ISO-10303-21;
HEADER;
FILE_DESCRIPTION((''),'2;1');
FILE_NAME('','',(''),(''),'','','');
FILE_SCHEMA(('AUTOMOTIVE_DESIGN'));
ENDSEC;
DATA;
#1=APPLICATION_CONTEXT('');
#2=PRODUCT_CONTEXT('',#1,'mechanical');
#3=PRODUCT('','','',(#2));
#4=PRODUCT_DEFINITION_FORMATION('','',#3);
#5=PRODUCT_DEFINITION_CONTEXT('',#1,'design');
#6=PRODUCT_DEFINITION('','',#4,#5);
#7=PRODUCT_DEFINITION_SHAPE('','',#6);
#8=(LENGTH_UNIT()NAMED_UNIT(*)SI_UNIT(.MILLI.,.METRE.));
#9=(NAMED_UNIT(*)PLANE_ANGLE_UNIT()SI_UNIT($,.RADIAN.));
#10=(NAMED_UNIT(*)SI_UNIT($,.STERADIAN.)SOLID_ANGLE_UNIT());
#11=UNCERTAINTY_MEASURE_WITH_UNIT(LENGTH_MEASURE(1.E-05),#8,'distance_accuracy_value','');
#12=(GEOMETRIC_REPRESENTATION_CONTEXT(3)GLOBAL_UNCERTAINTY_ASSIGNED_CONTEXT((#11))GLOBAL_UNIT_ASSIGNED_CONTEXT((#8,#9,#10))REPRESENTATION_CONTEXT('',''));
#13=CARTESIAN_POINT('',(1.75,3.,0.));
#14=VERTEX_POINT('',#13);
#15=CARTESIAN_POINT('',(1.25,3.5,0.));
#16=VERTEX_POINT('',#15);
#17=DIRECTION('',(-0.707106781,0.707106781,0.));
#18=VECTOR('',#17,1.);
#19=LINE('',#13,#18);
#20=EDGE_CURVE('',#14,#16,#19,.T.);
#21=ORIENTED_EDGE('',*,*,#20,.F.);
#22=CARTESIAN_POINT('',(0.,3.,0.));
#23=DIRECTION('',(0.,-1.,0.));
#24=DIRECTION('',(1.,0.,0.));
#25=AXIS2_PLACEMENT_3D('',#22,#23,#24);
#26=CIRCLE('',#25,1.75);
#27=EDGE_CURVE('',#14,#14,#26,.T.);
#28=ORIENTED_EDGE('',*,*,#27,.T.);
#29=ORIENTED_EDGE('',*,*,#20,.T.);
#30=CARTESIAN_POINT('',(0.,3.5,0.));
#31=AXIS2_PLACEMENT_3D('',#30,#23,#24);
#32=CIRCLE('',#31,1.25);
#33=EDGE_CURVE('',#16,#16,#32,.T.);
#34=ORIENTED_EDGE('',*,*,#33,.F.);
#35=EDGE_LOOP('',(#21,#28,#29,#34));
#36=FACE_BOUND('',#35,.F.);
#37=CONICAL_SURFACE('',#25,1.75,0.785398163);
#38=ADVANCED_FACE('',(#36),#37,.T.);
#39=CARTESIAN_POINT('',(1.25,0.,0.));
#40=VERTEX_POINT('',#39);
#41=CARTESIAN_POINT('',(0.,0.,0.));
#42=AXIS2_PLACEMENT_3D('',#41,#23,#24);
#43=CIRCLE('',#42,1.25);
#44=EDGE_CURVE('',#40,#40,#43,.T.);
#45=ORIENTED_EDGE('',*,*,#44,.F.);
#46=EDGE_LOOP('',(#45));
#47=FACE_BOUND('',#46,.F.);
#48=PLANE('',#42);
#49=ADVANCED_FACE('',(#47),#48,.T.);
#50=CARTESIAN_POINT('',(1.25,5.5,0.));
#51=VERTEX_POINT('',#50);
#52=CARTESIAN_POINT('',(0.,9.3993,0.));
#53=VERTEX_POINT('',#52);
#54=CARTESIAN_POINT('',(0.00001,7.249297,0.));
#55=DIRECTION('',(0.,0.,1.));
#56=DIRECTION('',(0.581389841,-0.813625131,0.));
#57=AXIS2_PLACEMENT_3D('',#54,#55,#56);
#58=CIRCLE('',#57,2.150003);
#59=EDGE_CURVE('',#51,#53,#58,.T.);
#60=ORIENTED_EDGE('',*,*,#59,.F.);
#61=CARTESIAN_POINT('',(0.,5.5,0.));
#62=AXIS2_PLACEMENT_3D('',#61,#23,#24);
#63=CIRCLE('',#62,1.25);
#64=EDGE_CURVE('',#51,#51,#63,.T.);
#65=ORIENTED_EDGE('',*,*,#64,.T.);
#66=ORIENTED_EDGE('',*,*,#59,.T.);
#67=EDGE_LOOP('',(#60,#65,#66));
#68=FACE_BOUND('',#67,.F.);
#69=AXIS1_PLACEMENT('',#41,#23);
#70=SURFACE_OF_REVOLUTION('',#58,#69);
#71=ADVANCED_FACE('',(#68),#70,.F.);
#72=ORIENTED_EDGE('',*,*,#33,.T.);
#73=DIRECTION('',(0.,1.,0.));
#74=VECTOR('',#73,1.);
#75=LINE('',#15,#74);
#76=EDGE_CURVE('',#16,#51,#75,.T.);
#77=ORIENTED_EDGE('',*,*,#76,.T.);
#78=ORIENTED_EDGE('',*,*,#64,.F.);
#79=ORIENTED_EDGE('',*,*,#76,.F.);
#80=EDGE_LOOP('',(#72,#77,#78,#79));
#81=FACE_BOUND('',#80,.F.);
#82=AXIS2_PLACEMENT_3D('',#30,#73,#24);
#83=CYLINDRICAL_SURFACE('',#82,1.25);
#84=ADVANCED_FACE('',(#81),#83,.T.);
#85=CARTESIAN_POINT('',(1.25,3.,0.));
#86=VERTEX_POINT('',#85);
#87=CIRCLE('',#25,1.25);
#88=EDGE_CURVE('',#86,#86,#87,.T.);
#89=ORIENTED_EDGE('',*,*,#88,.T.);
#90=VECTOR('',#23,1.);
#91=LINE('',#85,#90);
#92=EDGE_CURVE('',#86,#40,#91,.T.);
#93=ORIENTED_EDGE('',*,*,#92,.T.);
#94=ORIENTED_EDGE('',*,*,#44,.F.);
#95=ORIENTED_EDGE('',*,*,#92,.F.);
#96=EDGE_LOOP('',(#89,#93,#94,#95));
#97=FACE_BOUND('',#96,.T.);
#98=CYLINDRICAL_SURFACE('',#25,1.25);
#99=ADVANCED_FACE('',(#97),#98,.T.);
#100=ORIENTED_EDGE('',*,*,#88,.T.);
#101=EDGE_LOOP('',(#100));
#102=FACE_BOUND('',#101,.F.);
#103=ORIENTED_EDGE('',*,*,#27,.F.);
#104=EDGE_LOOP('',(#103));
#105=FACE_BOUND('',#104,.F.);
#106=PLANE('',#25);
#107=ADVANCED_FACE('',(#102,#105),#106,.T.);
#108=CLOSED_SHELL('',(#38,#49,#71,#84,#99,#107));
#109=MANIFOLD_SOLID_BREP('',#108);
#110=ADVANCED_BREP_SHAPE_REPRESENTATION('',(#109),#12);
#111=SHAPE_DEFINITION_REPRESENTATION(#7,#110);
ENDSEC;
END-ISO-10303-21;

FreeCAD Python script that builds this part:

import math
import FreeCAD as App
import Part
import Sketcher

V = App.Vector

doc = App.newDocument("Part")
params = doc.addObject("Spreadsheet::Sheet", "Params")
for row, (alias, value) in enumerate([
    ("sketch1_height", "3 mm"),
    ("sketch1_height2", "2 mm"),
    ("sketch1_radius", "2.15 mm"),
    ("sketch1_width", "0.5 mm"),
    ("sketch1_width2", "1.25 mm"),
    ("revolution_angle", "360 deg"),
], start=1):
    params.set(f"A{row}", alias)
    params.set(f"B{row}", "=" + value)
    params.setAlias(f"B{row}", alias)

body = doc.addObject("PartDesign::Body", "Body")

sketch1 = body.newObject("Sketcher::SketchObject", "Sketch")
sketch1.AttachmentSupport = (doc.getObject("XY_Plane"), [""])
sketch1.MapMode = "FlatFace"
sketch1.addGeometry([
    Part.LineSegment(V(0, 9.4, 0), V(0, 0, 0)),
    Part.LineSegment(V(0, 0, 0), V(1.2, 0, 0)),
    Part.LineSegment(V(1.2, 0, 0), V(1.2, 3, 0)),
    Part.LineSegment(V(1.2, 3, 0), V(1.8, 3, 0)),
    Part.LineSegment(V(1.8, 3, 0), V(1.2, 3.5, 0)),
    Part.LineSegment(V(1.2, 3.5, 0), V(1.2, 5.5, 0)),
    Part.ArcOfCircle(Part.Circle(V(0, 7.2, 0), V(0, 0, 1), 2.2), math.radians(-54), math.radians(90)),
], False)
sketch1.addConstraint([
    Sketcher.Constraint("Coincident", 0, 2, 1, 1),
    Sketcher.Constraint("Coincident", 1, 2, 2, 1),
    Sketcher.Constraint("Coincident", 2, 2, 3, 1),
    Sketcher.Constraint("Coincident", 3, 2, 4, 1),
    Sketcher.Constraint("Coincident", 4, 2, 5, 1),
    Sketcher.Constraint("Coincident", 5, 2, 6, 1),
    Sketcher.Constraint("Coincident", 6, 2, 0, 1),
    Sketcher.Constraint("Vertical", 0),
    Sketcher.Constraint("Horizontal", 1),
    Sketcher.Constraint("Vertical", 2),
    Sketcher.Constraint("Horizontal", 3),
    Sketcher.Constraint("Vertical", 5),
    Sketcher.Constraint("Coincident", 0, 2, -1, 1),
    Sketcher.Constraint("PointOnObject", 6, 3, -2),
    Sketcher.Constraint("Vertical", 2, 2, 4, 2),
    Sketcher.Constraint("DistanceY", 2, 1, 2, 2, 3.0),
    Sketcher.Constraint("DistanceY", 5, 1, 5, 2, 2.0),
    Sketcher.Constraint("Radius", 6, 2.15),
    Sketcher.Constraint("DistanceX", 3, 1, 3, 2, 0.5),
    Sketcher.Constraint("DistanceX", 1, 1, 1, 2, 1.25),
    Sketcher.Constraint("DistanceY", 2, 2, 4, 2, 0.5),
])
sketch1.setExpression("Constraints[15]", "Params.sketch1_height")
sketch1.setExpression("Constraints[16]", "Params.sketch1_height2")
sketch1.setExpression("Constraints[17]", "Params.sketch1_radius")
sketch1.setExpression("Constraints[18]", "Params.sketch1_width")
sketch1.setExpression("Constraints[19]", "Params.sketch1_width2")
revolution = body.newObject("PartDesign::Revolution", "Revolution")
revolution.Profile = sketch1
revolution.ReferenceAxis = (sketch1, ["V_Axis"])
revolution.setExpression("Angle", "Params.revolution_angle")

doc.recompute()
